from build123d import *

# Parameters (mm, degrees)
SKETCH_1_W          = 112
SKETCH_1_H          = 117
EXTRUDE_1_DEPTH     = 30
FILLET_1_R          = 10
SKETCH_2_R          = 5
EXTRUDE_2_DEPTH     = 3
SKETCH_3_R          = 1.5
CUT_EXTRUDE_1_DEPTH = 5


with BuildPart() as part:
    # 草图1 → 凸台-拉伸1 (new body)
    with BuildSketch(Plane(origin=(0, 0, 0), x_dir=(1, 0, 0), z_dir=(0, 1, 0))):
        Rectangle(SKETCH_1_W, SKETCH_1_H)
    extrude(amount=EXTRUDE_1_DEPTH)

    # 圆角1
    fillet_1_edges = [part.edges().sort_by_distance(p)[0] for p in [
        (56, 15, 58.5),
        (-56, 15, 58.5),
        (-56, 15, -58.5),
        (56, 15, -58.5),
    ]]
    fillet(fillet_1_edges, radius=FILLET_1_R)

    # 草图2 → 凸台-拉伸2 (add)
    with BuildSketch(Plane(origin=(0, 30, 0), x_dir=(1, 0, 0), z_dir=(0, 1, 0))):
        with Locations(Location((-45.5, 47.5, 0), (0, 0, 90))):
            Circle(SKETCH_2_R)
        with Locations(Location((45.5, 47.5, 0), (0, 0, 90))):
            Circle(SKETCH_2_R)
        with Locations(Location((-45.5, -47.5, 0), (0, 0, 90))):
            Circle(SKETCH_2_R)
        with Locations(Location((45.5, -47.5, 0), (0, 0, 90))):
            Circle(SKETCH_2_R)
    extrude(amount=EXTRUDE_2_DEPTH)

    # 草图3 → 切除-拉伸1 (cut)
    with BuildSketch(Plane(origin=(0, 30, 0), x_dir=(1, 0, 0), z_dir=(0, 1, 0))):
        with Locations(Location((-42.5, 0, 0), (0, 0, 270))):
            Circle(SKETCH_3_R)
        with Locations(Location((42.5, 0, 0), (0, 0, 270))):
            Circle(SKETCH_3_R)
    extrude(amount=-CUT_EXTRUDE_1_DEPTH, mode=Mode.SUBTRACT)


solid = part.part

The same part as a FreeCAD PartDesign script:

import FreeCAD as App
import Part
import Sketcher


def edges_at(feature, points):
    """Names of the edges that pass closest to the given points."""
    edges = feature.Shape.Edges
    near = lambda p: min(range(len(edges)), key=lambda i: edges[i].distToShape(Part.Vertex(*p))[0])
    return sorted({f"Edge{near(p) + 1}" for p in points})

doc = App.newDocument("Part")
body = doc.addObject("PartDesign::Body", "Body")

# Sketch on XZ plane
sketch1 = body.newObject("Sketcher::SketchObject", "Sketch")
sketch1.AttachmentSupport = (doc.getObject("XZ_Plane"), [""])
sketch1.MapMode = "FlatFace"
sketch1.addGeometry([
    Part.LineSegment(App.Vector(-56, -58, 0), App.Vector(-56, 58, 0)),
    Part.LineSegment(App.Vector(-56, 58, 0), App.Vector(56, 58, 0)),
    Part.LineSegment(App.Vector(56, 58, 0), App.Vector(56, -58, 0)),
    Part.LineSegment(App.Vector(56, -58, 0), App.Vector(-56, -58, 0)),
], False)
sketch1.addConstraint([
    Sketcher.Constraint("Coincident", 0, 2, 1, 1),
    Sketcher.Constraint("Coincident", 1, 2, 2, 1),
    Sketcher.Constraint("Coincident", 2, 2, 3, 1),
    Sketcher.Constraint("Coincident", 3, 2, 0, 1),
    Sketcher.Constraint("Vertical", 0),
    Sketcher.Constraint("Horizontal", 1),
    Sketcher.Constraint("Vertical", 2),
    Sketcher.Constraint("Horizontal", 3),
    Sketcher.Constraint("Symmetric", 0, 2, 2, 2, -1, 1),
    Sketcher.Constraint("DistanceX", 1, 1, 1, 2, 112.0),
    Sketcher.Constraint("DistanceY", 0, 1, 0, 2, 117.0),
])
pad1 = body.newObject("PartDesign::Pad", "Pad")
pad1.Profile = sketch1
pad1.Length = 30
pad1.Reversed = True
doc.recompute()

fillet = body.newObject("PartDesign::Fillet", "Fillet")
fillet.Base = (pad1, edges_at(pad1, [
    (56, 15, 58.5),
    (-56, 15, 58.5),
    (-56, 15, -58.5),
    (56, 15, -58.5),
]))
fillet.Radius = 10

# Sketch on XZ plane
sketch2 = body.newObject("Sketcher::SketchObject", "Sketch001")
sketch2.AttachmentSupport = (doc.getObject("XZ_Plane"), [""])
sketch2.MapMode = "FlatFace"
sketch2.AttachmentOffset = App.Placement(App.Vector(0, 0, -30), App.Rotation())
sketch2.addGeometry([
    Part.Circle(App.Vector(-46, -48, 0), App.Vector(0, 0, 1), 5),
    Part.Circle(App.Vector(46, -48, 0), App.Vector(0, 0, 1), 5),
    Part.Circle(App.Vector(-46, 48, 0), App.Vector(0, 0, 1), 5),
    Part.Circle(App.Vector(46, 48, 0), App.Vector(0, 0, 1), 5),
], False)
sketch2.addConstraint([
    Sketcher.Constraint("Equal", 0, 1),
    Sketcher.Constraint("Equal", 1, 2),
    Sketcher.Constraint("Equal", 2, 3),
    Sketcher.Constraint("Symmetric", 1, 3, 2, 3, -1, 1),
    Sketcher.Constraint("Symmetric", 0, 3, 3, 3, -1, 1),
    Sketcher.Constraint("Symmetric", 0, 3, 1, 3, -2),
    Sketcher.Constraint("Diameter", 0, 10.0),
    Sketcher.Constraint("DistanceX", 0, 3, 1, 3, 91.0),
    Sketcher.Constraint("DistanceY", 0, 3, 2, 3, 95.0),
])
pad2 = body.newObject("PartDesign::Pad", "Pad001")
pad2.Profile = sketch2
pad2.Length = 3
pad2.Reversed = True

# Sketch on XZ plane
sketch3 = body.newObject("Sketcher::SketchObject", "Sketch002")
sketch3.AttachmentSupport = (doc.getObject("XZ_Plane"), [""])
sketch3.MapMode = "FlatFace"
sketch3.AttachmentOffset = App.Placement(App.Vector(0, 0, -30), App.Rotation())
sketch3.addGeometry([
    Part.Circle(App.Vector(-42.5, 0, 0), App.Vector(0, 0, 1), 1.5),
    Part.Circle(App.Vector(42.5, 0, 0), App.Vector(0, 0, 1), 1.5),
], False)
sketch3.addConstraint([
    Sketcher.Constraint("Equal", 0, 1),
    Sketcher.Constraint("Symmetric", 0, 3, 1, 3, -1, 1),
    Sketcher.Constraint("PointOnObject", 0, 3, -1),
    Sketcher.Constraint("Diameter", 0, 3.0),
    Sketcher.Constraint("DistanceX", 0, 3, 1, 3, 85.0),
])
pocket1 = body.newObject("PartDesign::Pocket", "Pocket")
pocket1.Profile = sketch3
pocket1.Length = 5
pocket1.Reversed = True

doc.recompute()
